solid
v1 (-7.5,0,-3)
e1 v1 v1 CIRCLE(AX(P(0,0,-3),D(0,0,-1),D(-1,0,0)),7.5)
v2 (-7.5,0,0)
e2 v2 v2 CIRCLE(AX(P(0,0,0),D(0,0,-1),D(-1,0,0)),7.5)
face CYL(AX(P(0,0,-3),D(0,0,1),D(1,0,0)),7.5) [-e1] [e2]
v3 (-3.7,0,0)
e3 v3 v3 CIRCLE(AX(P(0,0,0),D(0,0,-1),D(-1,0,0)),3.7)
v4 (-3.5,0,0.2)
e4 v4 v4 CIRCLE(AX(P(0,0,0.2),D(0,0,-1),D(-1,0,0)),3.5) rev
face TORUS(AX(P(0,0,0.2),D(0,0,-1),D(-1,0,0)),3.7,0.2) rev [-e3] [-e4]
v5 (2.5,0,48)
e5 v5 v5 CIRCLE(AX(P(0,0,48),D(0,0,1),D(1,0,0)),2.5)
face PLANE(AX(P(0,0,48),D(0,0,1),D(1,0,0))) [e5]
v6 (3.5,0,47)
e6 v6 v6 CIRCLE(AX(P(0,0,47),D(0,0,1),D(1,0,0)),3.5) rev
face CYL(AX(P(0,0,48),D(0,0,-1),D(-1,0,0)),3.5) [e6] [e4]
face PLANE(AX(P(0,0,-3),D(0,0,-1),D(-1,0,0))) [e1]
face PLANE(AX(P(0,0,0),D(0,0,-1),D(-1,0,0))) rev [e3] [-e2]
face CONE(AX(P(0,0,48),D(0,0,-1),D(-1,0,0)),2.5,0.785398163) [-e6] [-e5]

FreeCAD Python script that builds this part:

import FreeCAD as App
import Part
import Sketcher
from FreeCAD import Vector
Q = App.Units.Quantity


def edges_at(feature, points):
    """Names of the edges that pass closest to the given points."""
    edges = feature.Shape.Edges
    near = lambda p: min(range(len(edges)), key=lambda i: edges[i].distToShape(Part.Vertex(*p))[0])
    return sorted({f"Edge{near(p) + 1}" for p in points})

doc = App.newDocument("Part")
body = doc.addObject("PartDesign::Body", "Body")

# Sketch on XY plane
sketch1 = doc.addObject("Sketcher::SketchObject", "Sketch")
body.addObject(sketch1)
sketch1.AttachmentSupport = (doc.XY_Plane, [""])
sketch1.MapMode = "FlatFace"
sketch1.addGeometry(Part.Circle(Vector(0, 0, 0), Vector(0, 0, 1), 3.5), False)
sketch1.addConstraint([
    Sketcher.Constraint("Coincident", 0, 3, -1, 1),
    Sketcher.Constraint("Diameter", 0, Q("7 mm")),
])
pad1 = doc.addObject("PartDesign::Pad", "Pad")
body.addObject(pad1)
pad1.Profile = sketch1
pad1.Length = 48

# Sketch on XY plane
sketch2 = doc.addObject("Sketcher::SketchObject", "Sketch001")
body.addObject(sketch2)
sketch2.AttachmentSupport = (doc.XY_Plane, [""])
sketch2.MapMode = "FlatFace"
sketch2.addGeometry(Part.Circle(Vector(0, 0, 0), Vector(0, 0, 1), 7.5), False)
sketch2.addConstraint([
    Sketcher.Constraint("Coincident", 0, 3, -1, 1),
    Sketcher.Constraint("Diameter", 0, Q("15 mm")),
])
pad2 = doc.addObject("PartDesign::Pad", "Pad001")
body.addObject(pad2)
pad2.Profile = sketch2
pad2.Length = 3
pad2.Reversed = True
doc.recompute()

chamfer = doc.addObject("PartDesign::Chamfer", "Chamfer")
body.addObject(chamfer)
chamfer.Base = (pad2, edges_at(pad2, [(-3.5, 0, 48)]))
chamfer.Size = 1
doc.recompute()

fillet = doc.addObject("PartDesign::Fillet", "Fillet")
body.addObject(fillet)
fillet.Base = (chamfer, edges_at(chamfer, [(-3.5, 0, 0)]))
fillet.Radius = 0.2

doc.recompute()
